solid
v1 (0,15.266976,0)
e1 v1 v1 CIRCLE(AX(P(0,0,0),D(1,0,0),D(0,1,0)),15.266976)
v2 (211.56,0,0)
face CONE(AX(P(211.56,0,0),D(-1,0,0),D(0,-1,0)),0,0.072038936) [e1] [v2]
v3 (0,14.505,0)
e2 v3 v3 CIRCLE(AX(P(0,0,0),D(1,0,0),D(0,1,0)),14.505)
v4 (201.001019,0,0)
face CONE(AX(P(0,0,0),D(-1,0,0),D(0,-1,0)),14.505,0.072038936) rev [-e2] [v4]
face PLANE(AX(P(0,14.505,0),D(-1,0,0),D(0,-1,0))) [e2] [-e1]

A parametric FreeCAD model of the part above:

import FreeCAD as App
import Part
import Sketcher
Q = App.Units.Quantity


def add_polygon(sketch, points):
    """Adds a closed chain of lines whose ends are joined by coincident constraints."""
    first, n = sketch.GeometryCount, len(points)
    for a, b in zip(points, points[1:] + points[:1]):
        sketch.addGeometry(Part.LineSegment(App.Vector(*a, 0), App.Vector(*b, 0)), False)
    for i in range(n):
        sketch.addConstraint(Sketcher.Constraint("Coincident", first + i, 2, first + (i + 1) % n, 1))

doc = App.newDocument("Part")
body = doc.addObject("PartDesign::Body", "Body")

# Sketch on XY plane
sketch1 = doc.addObject("Sketcher::SketchObject", "Sketch")
body.addObject(sketch1)
sketch1.AttachmentSupport = (doc.XY_Plane, [""])
sketch1.MapMode = "FlatFace"
add_polygon(sketch1, [(0, 15.266976), (0, 14.505), (201.001019, 0), (211.56, 0)])  # lines 0-3
sketch1.addConstraint(Sketcher.Constraint("Vertical", 0))
sketch1.addConstraint(Sketcher.Constraint("Horizontal", 2))
sketch1.addConstraint(Sketcher.Constraint("PointOnObject", 0, 2, -2))
sketch1.addConstraint(Sketcher.Constraint("PointOnObject", 1, 2, -1))
sketch1.addConstraint(Sketcher.Constraint("Parallel", 1, 3))
sketch1.addConstraint(Sketcher.Constraint("DistanceX", -1, 1, 2, 2, Q("211.56 mm")))
sketch1.addConstraint(Sketcher.Constraint("DistanceY", -1, 1, 0, 2, Q("14.505 mm")))
sketch1.addConstraint(Sketcher.Constraint("DistanceX", 2, 1, 2, 2, Q("10.558981 mm")))
revolution = doc.addObject("PartDesign::Revolution", "Revolution")
body.addObject(revolution)
revolution.Profile = sketch1
revolution.ReferenceAxis = (sketch1, ["H_Axis"])
revolution.Angle = 360

doc.recompute()
